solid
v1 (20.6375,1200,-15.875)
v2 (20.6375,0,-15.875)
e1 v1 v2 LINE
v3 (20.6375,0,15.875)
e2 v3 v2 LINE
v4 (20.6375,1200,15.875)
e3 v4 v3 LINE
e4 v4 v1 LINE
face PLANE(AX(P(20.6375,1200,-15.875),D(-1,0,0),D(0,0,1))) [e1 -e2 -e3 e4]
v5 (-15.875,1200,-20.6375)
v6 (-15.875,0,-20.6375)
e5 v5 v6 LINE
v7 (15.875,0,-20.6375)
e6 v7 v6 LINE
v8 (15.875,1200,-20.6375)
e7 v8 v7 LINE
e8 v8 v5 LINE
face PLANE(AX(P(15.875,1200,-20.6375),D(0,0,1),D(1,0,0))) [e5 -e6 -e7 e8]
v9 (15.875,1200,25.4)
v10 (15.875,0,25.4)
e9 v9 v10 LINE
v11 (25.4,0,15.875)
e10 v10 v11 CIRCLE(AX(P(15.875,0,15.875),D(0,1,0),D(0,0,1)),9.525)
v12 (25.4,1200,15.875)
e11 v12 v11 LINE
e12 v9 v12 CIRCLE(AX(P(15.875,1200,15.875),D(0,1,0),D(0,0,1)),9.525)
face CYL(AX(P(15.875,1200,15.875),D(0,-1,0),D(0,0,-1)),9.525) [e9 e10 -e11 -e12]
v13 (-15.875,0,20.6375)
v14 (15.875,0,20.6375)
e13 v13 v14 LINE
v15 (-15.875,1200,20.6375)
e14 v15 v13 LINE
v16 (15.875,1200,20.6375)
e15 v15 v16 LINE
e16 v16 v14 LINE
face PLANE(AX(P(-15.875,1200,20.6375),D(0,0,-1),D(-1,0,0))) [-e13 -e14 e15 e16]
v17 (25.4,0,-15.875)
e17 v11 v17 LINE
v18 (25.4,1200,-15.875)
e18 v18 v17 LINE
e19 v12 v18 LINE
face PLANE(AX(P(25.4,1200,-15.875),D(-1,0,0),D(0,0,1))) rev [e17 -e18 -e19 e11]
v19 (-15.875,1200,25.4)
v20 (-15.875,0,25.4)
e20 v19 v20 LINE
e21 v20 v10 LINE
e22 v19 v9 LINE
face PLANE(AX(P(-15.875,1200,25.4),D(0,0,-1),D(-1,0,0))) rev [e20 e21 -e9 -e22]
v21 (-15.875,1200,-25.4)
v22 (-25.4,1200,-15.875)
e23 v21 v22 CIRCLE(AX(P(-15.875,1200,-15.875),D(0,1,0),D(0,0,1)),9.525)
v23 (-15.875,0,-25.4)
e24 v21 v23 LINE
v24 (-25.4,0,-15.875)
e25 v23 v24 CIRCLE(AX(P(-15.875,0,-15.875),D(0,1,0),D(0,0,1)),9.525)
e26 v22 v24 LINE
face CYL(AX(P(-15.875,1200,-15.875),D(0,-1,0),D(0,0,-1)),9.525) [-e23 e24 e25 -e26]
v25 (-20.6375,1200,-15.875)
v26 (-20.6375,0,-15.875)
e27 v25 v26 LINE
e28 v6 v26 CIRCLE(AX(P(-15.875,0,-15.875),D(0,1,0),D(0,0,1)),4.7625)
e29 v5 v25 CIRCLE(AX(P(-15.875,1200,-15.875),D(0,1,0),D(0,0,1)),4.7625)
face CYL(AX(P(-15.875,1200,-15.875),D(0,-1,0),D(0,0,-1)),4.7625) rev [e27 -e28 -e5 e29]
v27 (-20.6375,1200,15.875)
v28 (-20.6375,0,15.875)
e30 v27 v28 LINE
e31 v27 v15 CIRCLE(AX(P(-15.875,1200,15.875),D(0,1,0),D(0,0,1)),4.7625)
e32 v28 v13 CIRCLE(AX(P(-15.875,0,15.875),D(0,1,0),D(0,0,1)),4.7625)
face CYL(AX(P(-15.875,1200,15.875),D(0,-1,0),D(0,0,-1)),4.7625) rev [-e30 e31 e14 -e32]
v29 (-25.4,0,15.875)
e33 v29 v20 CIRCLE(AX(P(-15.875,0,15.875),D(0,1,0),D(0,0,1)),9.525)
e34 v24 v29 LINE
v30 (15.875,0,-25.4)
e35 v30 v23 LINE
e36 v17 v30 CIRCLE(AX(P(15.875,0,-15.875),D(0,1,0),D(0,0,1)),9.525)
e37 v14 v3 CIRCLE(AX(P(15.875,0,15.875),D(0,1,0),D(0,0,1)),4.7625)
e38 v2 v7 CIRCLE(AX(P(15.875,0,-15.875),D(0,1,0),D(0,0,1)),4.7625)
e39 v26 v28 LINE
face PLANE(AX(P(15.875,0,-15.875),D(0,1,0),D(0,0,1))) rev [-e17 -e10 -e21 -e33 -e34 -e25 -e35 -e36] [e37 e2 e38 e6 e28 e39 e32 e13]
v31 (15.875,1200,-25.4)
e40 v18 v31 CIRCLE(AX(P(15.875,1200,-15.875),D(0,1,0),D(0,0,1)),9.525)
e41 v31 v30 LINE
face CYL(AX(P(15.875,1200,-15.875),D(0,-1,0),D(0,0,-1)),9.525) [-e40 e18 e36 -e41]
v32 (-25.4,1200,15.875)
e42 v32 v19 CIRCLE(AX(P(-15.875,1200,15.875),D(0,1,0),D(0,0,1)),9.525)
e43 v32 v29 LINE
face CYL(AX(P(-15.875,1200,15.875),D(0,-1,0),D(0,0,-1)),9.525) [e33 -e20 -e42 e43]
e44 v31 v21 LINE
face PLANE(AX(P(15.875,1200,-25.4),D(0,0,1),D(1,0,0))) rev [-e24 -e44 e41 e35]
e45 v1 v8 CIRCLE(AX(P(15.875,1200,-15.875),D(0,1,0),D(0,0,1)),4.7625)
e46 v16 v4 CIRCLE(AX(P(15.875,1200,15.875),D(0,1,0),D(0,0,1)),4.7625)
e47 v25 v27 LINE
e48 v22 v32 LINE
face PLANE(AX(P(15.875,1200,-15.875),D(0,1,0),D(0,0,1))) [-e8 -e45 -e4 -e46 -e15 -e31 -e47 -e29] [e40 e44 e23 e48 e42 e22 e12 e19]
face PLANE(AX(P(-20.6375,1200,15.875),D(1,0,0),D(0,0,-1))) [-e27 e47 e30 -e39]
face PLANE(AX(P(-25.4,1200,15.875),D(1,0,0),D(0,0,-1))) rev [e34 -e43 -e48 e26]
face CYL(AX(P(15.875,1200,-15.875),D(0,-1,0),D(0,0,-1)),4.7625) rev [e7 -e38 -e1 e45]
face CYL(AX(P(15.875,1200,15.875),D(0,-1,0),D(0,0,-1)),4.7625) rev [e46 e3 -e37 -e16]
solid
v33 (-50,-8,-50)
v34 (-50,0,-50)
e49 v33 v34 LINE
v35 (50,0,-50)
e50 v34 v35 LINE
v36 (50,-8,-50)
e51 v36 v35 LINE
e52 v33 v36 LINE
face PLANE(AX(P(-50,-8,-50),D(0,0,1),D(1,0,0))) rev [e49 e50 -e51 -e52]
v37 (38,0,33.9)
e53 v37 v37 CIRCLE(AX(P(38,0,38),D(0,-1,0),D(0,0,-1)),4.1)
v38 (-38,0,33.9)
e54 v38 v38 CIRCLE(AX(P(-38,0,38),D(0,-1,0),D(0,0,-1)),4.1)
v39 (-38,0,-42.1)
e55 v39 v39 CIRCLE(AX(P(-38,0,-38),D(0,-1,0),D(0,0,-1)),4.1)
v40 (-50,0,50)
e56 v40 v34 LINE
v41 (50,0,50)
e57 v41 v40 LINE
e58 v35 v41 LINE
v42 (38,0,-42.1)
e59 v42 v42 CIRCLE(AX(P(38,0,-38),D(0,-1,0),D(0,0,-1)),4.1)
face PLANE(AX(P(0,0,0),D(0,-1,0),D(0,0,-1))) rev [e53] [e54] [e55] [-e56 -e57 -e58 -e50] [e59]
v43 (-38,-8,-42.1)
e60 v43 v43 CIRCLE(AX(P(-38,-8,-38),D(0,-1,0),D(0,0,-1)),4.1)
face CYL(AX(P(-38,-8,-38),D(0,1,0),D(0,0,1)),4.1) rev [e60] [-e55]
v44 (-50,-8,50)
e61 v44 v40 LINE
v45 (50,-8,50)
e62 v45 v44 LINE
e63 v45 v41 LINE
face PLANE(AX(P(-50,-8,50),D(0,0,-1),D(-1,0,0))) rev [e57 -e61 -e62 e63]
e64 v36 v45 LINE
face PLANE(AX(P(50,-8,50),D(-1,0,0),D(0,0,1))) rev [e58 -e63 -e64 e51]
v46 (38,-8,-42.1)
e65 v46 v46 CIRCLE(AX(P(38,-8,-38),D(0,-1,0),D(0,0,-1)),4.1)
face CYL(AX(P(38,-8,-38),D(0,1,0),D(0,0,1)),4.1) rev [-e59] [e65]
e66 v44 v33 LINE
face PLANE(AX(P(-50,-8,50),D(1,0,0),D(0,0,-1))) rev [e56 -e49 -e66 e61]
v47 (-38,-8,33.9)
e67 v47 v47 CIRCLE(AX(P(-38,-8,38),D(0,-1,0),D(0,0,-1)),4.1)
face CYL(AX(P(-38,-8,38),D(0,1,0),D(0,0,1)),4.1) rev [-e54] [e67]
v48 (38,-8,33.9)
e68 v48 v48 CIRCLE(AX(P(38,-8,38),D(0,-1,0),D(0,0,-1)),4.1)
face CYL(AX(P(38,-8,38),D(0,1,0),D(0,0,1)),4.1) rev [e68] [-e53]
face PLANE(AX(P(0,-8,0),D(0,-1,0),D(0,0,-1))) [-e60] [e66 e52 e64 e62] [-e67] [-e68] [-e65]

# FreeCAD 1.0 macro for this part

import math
import FreeCAD as App
import Part
import Sketcher

V = App.Vector

doc = App.newDocument("Part")
params = doc.addObject("Spreadsheet::Sheet", "Params")
for row, (alias, value) in enumerate([
    ("sketch1_width", "31.75 mm"),
    ("pad1_length", "1200 mm"),
    ("sketch2_diameter", "8.2 mm"),
    ("sketch2_width", "100 mm"),
    ("pad2_length", "8 mm"),
], start=1):
    params.set(f"A{row}", alias)
    params.set(f"B{row}", "=" + value)
    params.setAlias(f"B{row}", alias)

body = doc.addObject("PartDesign::Body", "Body")

sketch1 = body.newObject("Sketcher::SketchObject", "Sketch")
sketch1.AttachmentSupport = (doc.getObject("XZ_Plane"), [""])
sketch1.MapMode = "FlatFace"
sketch1.addGeometry([
    Part.LineSegment(V(-15.9, 25.4, 0), V(15.9, 25.4, 0)),
    Part.ArcOfCircle(Part.Circle(V(15.9, 15.9, 0), V(0, 0, 1), 9.5), math.radians(0), math.radians(90)),
    Part.LineSegment(V(25.4, 15.9, 0), V(25.4, -15.9, 0)),
    Part.ArcOfCircle(Part.Circle(V(15.9, -15.9, 0), V(0, 0, 1), 9.5), math.radians(-90), math.radians(0)),
    Part.LineSegment(V(15.9, -25.4, 0), V(-15.9, -25.4, 0)),
    Part.ArcOfCircle(Part.Circle(V(-15.9, -15.9, 0), V(0, 0, 1), 9.5), math.radians(180), math.radians(270)),
    Part.LineSegment(V(-25.4, -15.9, 0), V(-25.4, 15.9, 0)),
    Part.ArcOfCircle(Part.Circle(V(-15.9, 15.9, 0), V(0, 0, 1), 9.5), math.radians(90), math.radians(180)),
    Part.LineSegment(V(15.9, 20.6, 0), V(-15.9, 20.6, 0)),
    Part.ArcOfCircle(Part.Circle(V(-15.9, 15.9, 0), V(0, 0, 1), 4.8), math.radians(90), math.radians(180)),
    Part.LineSegment(V(-20.6, 15.9, 0), V(-20.6, -15.9, 0)),
    Part.ArcOfCircle(Part.Circle(V(-15.9, -15.9, 0), V(0, 0, 1), 4.8), math.radians(-180), math.radians(-90)),
    Part.LineSegment(V(-15.9, -20.6, 0), V(15.9, -20.6, 0)),
    Part.ArcOfCircle(Part.Circle(V(15.9, -15.9, 0), V(0, 0, 1), 4.8), math.radians(-90), math.radians(0)),
    Part.LineSegment(V(20.6, -15.9, 0), V(20.6, 15.9, 0)),
    Part.ArcOfCircle(Part.Circle(V(15.9, 15.9, 0), V(0, 0, 1), 4.8), math.radians(0), math.radians(90)),
], False)
sketch1.addConstraint([
    Sketcher.Constraint("Tangent", 0, 2, 1, 2),
    Sketcher.Constraint("Tangent", 1, 1, 2, 1),
    Sketcher.Constraint("Tangent", 2, 2, 3, 2),
    Sketcher.Constraint("Tangent", 3, 1, 4, 1),
    Sketcher.Constraint("Tangent", 4, 2, 5, 2),
    Sketcher.Constraint("Tangent", 5, 1, 6, 1),
    Sketcher.Constraint("Tangent", 6, 2, 7, 2),
    Sketcher.Constraint("Tangent", 7, 1, 0, 1),
    Sketcher.Constraint("Tangent", 8, 2, 9, 1),
    Sketcher.Constraint("Tangent", 9, 2, 10, 1),
    Sketcher.Constraint("Tangent", 10, 2, 11, 1),
    Sketcher.Constraint("Tangent", 11, 2, 12, 1),
    Sketcher.Constraint("Tangent", 12, 2, 13, 1),
    Sketcher.Constraint("Tangent", 13, 2, 14, 1),
    Sketcher.Constraint("Tangent", 14, 2, 15, 1),
    Sketcher.Constraint("Tangent", 15, 2, 8, 1),
    Sketcher.Constraint("Horizontal", 0),
    Sketcher.Constraint("Vertical", 2),
    Sketcher.Constraint("Horizontal", 4),
    Sketcher.Constraint("Vertical", 6),
    Sketcher.Constraint("Horizontal", 8),
    Sketcher.Constraint("Vertical", 10),
    Sketcher.Constraint("Horizontal", 12),
    Sketcher.Constraint("Vertical", 14),
    Sketcher.Constraint("Coincident", 9, 3, 7, 3),
    Sketcher.Constraint("Coincident", 11, 3, 5, 3),
    Sketcher.Constraint("Coincident", 13, 3, 3, 3),
    Sketcher.Constraint("Equal", 1, 3),
    Sketcher.Constraint("Equal", 3, 5),
    Sketcher.Constraint("Equal", 5, 7),
    Sketcher.Constraint("Equal", 13, 15),
    Sketcher.Constraint("Symmetric", 1, 3, 5, 3, -1, 1),
    Sketcher.Constraint("Equal", 12, 2),
    Sketcher.Constraint("Radius", 1, 9.525),
    Sketcher.Constraint("DistanceX", 0, 1, 0, 2, 31.75),
    Sketcher.Constraint("Radius", 9, 4.7625),
])
sketch1.setExpression("Constraints[34]", "Params.sketch1_width")
pad1 = body.newObject("PartDesign::Pad", "Pad")
pad1.Profile = sketch1
pad1.setExpression("Length", "Params.pad1_length")
pad1.Reversed = True
body2 = doc.addObject("PartDesign::Body", "Body001")

sketch2 = body2.newObject("Sketcher::SketchObject", "Sketch001")
sketch2.AttachmentSupport = (doc.getObject("XZ_Plane001"), [""])
sketch2.MapMode = "FlatFace"
sketch2.addGeometry([
    Part.LineSegment(V(50, -50, 0), V(50, 50, 0)),
    Part.LineSegment(V(50, 50, 0), V(-50, 50, 0)),
    Part.LineSegment(V(-50, 50, 0), V(-50, -50, 0)),
    Part.LineSegment(V(-50, -50, 0), V(50, -50, 0)),
    Part.Circle(V(38, 38, 0), V(0, 0, 1), 4.1),
    Part.Circle(V(-38, 38, 0), V(0, 0, 1), 4.1),
    Part.Circle(V(38, -38, 0), V(0, 0, 1), 4.1),
    Part.Circle(V(-38, -38, 0), V(0, 0, 1), 4.1),
], False)
sketch2.addConstraint([
    Sketcher.Constraint("Coincident", 0, 2, 1, 1),
    Sketcher.Constraint("Coincident", 1, 2, 2, 1),
    Sketcher.Constraint("Coincident", 2, 2, 3, 1),
    Sketcher.Constraint("Coincident", 3, 2, 0, 1),
    Sketcher.Constraint("Vertical", 0),
    Sketcher.Constraint("Horizontal", 1),
    Sketcher.Constraint("Vertical", 2),
    Sketcher.Constraint("Horizontal", 3),
    Sketcher.Constraint("Equal", 4, 5),
    Sketcher.Constraint("Equal", 5, 6),
    Sketcher.Constraint("Equal", 6, 7),
    Sketcher.Constraint("Symmetric", 5, 3, 6, 3, -1, 1),
    Sketcher.Constraint("Symmetric", 4, 3, 7, 3, -1, 1),
    Sketcher.Constraint("Symmetric", 0, 2, 2, 2, -1, 1),
    Sketcher.Constraint("Symmetric", 4, 3, 5, 3, -2),
    Sketcher.Constraint("Equal", 3, 0),
    Sketcher.Constraint("Diameter", 4, 8.2),
    Sketcher.Constraint("DistanceX", 1, 2, 1, 1, 100.0),
    Sketcher.Constraint("DistanceX", -1, 1, 4, 3, 38.0),
    Sketcher.Constraint("DistanceY", -1, 1, 4, 3, 38.0),
])
sketch2.setExpression("Constraints[16]", "Params.sketch2_diameter")
sketch2.setExpression("Constraints[17]", "Params.sketch2_width")
pad2 = body2.newObject("PartDesign::Pad", "Pad001")
pad2.Profile = sketch2
pad2.setExpression("Length", "Params.pad2_length")

doc.recompute()
